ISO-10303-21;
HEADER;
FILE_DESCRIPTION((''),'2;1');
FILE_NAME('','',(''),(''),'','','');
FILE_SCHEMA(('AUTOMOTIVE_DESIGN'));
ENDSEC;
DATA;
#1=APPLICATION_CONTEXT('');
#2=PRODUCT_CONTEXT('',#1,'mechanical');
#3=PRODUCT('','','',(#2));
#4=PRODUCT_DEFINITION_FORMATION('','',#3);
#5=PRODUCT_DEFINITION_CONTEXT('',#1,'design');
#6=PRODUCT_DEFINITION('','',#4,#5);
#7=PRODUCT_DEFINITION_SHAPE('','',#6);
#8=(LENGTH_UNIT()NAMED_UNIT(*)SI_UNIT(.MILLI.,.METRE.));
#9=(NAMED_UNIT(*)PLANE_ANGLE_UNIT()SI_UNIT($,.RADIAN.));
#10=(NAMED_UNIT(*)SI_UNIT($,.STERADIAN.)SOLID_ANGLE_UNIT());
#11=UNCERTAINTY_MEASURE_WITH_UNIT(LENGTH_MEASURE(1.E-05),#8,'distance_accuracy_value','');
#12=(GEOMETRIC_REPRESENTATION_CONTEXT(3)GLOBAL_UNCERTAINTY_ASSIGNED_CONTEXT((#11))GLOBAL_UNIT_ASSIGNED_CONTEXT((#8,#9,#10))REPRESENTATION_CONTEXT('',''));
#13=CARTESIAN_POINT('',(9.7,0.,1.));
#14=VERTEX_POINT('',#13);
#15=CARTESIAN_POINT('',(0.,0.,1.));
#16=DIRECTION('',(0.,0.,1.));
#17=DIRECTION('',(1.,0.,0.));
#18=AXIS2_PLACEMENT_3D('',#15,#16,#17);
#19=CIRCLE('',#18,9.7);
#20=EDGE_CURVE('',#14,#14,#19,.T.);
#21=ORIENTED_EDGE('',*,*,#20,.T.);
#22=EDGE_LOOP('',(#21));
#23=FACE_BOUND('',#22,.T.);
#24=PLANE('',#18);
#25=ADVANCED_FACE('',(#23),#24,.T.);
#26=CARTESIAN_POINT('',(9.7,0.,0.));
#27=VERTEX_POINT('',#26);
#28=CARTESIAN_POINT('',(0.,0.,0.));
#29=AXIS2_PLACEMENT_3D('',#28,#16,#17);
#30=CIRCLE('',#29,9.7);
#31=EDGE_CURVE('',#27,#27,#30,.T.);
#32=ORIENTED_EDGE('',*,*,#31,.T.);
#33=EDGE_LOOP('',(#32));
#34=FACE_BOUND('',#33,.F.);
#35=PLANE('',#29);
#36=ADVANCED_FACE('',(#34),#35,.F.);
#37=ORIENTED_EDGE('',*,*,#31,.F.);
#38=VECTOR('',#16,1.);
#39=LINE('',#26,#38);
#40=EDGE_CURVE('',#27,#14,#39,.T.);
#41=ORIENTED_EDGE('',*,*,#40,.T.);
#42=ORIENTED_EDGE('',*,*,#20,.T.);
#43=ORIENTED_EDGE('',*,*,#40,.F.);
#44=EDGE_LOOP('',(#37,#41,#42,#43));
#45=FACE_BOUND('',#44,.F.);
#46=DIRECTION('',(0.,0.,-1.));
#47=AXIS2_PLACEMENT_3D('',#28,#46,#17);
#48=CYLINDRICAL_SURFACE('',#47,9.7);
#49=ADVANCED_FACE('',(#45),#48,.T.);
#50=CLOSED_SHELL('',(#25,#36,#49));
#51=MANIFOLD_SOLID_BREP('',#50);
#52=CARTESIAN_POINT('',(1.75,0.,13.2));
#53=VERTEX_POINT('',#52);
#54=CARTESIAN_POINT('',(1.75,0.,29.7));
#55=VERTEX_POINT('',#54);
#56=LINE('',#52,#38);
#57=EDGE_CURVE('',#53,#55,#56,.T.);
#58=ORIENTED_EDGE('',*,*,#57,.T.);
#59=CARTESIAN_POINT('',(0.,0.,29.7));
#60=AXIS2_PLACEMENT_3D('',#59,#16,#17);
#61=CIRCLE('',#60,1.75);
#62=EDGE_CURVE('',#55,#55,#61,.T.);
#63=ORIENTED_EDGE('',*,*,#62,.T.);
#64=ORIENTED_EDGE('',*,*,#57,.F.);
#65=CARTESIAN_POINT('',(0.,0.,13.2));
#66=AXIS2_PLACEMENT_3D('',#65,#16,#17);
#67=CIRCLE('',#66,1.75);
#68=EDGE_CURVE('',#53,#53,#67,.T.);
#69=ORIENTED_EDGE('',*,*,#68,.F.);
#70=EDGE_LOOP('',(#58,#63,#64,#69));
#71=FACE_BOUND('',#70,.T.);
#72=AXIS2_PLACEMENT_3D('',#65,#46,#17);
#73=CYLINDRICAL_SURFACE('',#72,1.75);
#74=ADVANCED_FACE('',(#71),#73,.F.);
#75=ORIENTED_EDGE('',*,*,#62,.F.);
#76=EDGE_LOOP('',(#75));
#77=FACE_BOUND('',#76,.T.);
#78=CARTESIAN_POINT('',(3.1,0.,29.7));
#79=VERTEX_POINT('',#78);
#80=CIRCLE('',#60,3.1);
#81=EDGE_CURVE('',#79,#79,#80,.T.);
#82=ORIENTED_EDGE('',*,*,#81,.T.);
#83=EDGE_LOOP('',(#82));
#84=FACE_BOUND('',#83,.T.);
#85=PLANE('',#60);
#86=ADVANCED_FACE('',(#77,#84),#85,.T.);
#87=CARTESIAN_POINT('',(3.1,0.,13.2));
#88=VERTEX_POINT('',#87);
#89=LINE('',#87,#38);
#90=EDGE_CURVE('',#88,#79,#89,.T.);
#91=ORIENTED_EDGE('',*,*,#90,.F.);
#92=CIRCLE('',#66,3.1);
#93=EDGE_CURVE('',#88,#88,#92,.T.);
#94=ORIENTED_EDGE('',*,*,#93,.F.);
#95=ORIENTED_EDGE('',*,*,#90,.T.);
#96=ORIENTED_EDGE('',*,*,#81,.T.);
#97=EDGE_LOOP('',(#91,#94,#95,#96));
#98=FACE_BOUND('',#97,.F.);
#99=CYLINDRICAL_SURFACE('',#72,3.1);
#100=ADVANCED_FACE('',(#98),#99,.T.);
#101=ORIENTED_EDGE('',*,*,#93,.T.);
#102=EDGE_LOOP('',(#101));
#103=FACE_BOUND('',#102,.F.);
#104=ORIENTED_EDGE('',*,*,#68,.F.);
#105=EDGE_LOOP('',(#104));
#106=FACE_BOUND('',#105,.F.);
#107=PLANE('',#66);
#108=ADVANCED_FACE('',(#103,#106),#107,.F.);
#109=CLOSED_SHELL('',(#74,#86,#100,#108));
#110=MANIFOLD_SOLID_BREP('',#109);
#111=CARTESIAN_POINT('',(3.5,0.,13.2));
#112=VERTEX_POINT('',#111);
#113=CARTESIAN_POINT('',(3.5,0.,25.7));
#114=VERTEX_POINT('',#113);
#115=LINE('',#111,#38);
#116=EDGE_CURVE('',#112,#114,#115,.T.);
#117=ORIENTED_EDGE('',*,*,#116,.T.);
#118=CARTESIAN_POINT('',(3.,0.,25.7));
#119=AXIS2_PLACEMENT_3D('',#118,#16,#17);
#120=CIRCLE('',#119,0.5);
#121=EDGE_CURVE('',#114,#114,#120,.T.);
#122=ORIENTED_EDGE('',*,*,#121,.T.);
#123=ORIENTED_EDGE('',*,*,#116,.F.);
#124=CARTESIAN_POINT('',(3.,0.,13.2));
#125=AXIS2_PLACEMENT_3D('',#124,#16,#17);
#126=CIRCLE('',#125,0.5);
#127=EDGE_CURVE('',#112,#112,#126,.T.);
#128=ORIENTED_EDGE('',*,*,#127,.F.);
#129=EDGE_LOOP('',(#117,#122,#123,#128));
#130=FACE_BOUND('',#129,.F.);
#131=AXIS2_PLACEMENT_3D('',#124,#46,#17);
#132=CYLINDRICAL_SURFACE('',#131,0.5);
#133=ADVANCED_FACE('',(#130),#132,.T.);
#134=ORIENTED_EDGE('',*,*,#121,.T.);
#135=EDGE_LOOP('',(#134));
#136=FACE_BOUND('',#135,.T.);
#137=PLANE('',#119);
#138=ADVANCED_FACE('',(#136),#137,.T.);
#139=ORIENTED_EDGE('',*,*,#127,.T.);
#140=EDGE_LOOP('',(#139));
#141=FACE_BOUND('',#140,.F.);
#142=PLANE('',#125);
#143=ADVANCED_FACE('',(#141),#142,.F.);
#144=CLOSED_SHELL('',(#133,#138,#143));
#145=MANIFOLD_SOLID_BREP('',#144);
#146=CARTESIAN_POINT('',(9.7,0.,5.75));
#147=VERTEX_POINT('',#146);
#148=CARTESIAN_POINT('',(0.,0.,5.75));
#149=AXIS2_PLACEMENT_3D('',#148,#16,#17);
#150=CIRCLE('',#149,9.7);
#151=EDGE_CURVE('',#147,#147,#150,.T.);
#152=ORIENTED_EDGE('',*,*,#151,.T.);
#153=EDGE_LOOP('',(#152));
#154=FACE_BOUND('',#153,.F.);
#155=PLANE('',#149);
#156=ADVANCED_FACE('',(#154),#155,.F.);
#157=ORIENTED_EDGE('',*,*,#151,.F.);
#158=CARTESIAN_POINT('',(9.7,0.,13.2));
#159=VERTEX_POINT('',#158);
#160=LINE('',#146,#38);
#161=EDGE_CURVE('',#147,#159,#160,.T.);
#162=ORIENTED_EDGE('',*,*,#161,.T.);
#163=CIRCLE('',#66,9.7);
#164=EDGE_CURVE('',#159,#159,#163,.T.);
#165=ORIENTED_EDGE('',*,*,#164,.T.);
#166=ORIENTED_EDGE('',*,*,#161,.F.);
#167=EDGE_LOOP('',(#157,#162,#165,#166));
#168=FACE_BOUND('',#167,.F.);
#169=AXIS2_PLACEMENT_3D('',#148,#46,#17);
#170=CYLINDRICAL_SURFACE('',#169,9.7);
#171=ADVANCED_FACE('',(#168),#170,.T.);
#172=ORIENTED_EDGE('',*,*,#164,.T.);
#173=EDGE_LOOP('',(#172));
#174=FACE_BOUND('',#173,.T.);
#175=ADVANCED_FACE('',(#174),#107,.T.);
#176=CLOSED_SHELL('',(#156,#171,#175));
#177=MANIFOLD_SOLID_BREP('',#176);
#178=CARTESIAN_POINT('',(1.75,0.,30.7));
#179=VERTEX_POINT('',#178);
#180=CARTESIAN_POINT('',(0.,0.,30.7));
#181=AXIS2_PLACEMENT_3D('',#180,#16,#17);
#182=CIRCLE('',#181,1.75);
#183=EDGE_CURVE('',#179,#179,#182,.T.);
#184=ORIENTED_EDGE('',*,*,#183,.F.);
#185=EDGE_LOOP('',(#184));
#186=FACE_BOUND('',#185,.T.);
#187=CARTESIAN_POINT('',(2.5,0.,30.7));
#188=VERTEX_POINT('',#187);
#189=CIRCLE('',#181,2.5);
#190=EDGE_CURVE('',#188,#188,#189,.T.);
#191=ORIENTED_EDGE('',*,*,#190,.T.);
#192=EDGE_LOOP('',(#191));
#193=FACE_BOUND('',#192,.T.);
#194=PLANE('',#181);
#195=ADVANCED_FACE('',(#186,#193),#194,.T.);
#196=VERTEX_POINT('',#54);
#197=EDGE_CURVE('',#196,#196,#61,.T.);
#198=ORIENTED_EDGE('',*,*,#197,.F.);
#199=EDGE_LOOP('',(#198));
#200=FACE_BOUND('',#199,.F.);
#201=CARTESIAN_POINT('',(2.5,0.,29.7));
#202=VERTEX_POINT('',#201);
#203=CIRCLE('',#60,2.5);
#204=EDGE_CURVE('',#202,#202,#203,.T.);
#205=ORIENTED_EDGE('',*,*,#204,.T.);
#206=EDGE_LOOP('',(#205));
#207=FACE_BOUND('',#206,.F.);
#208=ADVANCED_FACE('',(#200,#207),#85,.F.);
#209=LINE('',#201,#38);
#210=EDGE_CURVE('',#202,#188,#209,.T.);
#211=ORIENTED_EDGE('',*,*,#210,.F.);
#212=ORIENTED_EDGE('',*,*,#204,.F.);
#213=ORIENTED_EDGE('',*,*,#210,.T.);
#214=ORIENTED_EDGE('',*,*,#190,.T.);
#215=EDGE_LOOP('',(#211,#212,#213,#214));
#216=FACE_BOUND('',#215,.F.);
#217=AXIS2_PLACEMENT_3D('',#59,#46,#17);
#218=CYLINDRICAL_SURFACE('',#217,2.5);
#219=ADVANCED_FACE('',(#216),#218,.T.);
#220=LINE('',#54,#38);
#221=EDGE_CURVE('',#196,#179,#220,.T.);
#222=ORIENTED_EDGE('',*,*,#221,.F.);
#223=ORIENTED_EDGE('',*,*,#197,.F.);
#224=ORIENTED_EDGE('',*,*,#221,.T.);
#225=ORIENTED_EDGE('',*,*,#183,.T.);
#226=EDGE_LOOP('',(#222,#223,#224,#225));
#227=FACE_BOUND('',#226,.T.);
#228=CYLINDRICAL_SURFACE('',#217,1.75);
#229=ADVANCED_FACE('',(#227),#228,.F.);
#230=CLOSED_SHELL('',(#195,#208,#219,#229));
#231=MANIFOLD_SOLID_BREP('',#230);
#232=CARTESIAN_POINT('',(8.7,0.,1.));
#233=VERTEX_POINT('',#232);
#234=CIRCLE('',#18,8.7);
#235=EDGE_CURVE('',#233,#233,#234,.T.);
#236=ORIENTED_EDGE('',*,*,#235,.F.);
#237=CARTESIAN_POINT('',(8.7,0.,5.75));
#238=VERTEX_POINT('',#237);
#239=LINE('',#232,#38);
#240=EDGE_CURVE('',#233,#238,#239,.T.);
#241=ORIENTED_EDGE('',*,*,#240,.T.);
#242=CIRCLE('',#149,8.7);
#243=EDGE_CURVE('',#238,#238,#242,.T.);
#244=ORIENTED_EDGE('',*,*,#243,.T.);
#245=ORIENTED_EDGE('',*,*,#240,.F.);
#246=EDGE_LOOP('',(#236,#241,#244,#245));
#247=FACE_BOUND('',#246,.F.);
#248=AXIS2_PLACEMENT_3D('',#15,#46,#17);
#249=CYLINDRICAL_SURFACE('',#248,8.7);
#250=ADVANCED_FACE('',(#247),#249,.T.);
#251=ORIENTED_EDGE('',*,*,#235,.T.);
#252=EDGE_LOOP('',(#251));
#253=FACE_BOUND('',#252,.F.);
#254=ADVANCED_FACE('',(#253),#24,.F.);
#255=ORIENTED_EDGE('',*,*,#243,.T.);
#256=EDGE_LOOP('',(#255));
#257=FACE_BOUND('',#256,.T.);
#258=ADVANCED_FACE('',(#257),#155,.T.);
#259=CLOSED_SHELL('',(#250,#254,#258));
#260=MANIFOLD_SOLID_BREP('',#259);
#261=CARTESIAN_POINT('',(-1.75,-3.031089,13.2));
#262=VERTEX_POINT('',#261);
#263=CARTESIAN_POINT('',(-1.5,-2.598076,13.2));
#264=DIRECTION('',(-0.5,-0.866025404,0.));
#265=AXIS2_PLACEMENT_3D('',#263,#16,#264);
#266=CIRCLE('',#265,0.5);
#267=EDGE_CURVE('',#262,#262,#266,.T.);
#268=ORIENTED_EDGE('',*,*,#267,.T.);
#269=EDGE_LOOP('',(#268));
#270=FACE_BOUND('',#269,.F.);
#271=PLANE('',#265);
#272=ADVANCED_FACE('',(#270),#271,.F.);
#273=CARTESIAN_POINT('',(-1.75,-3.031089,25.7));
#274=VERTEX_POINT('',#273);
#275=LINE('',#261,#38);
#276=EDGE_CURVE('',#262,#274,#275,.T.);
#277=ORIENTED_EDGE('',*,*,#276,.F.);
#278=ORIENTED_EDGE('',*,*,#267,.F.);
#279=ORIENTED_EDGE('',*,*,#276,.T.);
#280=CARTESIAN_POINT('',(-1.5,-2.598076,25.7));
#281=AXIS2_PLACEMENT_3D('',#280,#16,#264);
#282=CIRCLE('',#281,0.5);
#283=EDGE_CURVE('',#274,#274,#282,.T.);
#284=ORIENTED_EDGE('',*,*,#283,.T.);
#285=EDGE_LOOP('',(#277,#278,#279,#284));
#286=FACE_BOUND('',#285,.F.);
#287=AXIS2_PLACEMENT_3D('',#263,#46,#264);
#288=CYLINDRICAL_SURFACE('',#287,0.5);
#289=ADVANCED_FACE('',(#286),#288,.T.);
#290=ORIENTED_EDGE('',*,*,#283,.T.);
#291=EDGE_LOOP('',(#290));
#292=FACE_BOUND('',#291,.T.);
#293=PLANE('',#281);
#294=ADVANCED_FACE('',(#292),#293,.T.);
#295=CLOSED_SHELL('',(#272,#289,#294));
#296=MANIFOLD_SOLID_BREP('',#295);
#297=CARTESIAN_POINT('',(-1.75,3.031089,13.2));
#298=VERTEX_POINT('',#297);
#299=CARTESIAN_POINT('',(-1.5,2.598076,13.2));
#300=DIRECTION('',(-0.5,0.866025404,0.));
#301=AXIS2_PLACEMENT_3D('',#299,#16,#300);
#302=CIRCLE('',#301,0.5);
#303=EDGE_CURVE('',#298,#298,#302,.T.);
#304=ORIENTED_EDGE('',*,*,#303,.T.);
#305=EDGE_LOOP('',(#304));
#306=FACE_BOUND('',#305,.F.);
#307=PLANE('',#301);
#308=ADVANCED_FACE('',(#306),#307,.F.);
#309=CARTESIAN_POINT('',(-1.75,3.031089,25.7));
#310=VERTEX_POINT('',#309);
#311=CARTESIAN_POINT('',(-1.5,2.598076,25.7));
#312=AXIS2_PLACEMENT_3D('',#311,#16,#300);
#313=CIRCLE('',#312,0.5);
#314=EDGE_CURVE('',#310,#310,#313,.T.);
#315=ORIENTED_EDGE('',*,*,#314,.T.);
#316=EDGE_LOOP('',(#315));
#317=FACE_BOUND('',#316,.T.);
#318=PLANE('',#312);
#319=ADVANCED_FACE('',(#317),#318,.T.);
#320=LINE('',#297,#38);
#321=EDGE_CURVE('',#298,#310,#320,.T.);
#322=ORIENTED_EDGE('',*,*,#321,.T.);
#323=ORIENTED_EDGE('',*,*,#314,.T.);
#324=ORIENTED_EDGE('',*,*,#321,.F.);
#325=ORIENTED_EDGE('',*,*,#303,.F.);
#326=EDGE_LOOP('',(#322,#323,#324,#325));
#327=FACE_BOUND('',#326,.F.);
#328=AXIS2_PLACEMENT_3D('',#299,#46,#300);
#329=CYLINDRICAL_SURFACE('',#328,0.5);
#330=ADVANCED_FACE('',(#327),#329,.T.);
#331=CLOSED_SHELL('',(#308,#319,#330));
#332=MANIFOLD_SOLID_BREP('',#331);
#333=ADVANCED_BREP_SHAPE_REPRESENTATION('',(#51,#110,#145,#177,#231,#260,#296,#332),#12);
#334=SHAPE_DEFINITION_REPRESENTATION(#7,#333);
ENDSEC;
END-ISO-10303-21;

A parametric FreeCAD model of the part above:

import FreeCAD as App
import Part
import Sketcher

doc = App.newDocument("Part")
params = doc.addObject("Spreadsheet::Sheet", "Params")
for row, (alias, value) in enumerate([
    ("sketch1_diameter", "19.4 mm"),
    ("pad1_length", "7.45 mm"),
    ("sketch2_diameter", "17.4 mm"),
    ("pad2_length", "4.75 mm"),
    ("sketch3_diameter", "19.4 mm"),
    ("pad3_length", "1 mm"),
    ("sketch4_diameter", "1 mm"),
    ("pad4_length", "12.5 mm"),
    ("sketch5_diameter", "3.5 mm"),
    ("pad5_length", "16.5 mm"),
    ("sketch6_diameter", "6.2 mm"),
    ("pad6_length", "16.5 mm"),
    ("sketch7_diameter", "3.5 mm"),
    ("pad7_length", "1 mm"),
    ("sketch8_diameter", "5 mm"),
    ("pad8_length", "1 mm"),
    ("sketch9_diameter", "1 mm"),
    ("pad9_length", "12.5 mm"),
    ("sketch10_diameter", "1 mm"),
    ("pad10_length", "12.5 mm"),
], start=1):
    params.set(f"A{row}", alias)
    params.set(f"B{row}", "=" + value)
    params.setAlias(f"B{row}", alias)

body = doc.addObject("PartDesign::Body", "Body")

# Sketch on XY plane
sketch1 = body.newObject("Sketcher::SketchObject", "Sketch")
sketch1.AttachmentSupport = (doc.getObject("XY_Plane"), [""])
sketch1.MapMode = "FlatFace"
sketch1.AttachmentOffset = App.Placement(App.Vector(0, 0, 5.75), App.Rotation())
sketch1.addGeometry(Part.Circle(App.Vector(0, 0, 0), App.Vector(0, 0, 1), 10), False)
sketch1.addConstraint([
    Sketcher.Constraint("Coincident", 0, 3, -1, 1),
    Sketcher.Constraint("Diameter", 0, 19.4),
])
sketch1.setExpression("Constraints[1]", "Params.sketch1_diameter")
pad1 = body.newObject("PartDesign::Pad", "Pad")
pad1.Profile = sketch1
pad1.setExpression("Length", "Params.pad1_length")
body2 = doc.addObject("PartDesign::Body", "Body001")

# Sketch on XY plane
sketch2 = body2.newObject("Sketcher::SketchObject", "Sketch001")
sketch2.AttachmentSupport = (doc.getObject("XY_Plane001"), [""])
sketch2.MapMode = "FlatFace"
sketch2.AttachmentOffset = App.Placement(App.Vector(0, 0, 1), App.Rotation())
sketch2.addGeometry(Part.Circle(App.Vector(0, 0, 0), App.Vector(0, 0, 1), 9), False)
sketch2.addConstraint([
    Sketcher.Constraint("Coincident", 0, 3, -1, 1),
    Sketcher.Constraint("Diameter", 0, 17.4),
])
sketch2.setExpression("Constraints[1]", "Params.sketch2_diameter")
pad2 = body2.newObject("PartDesign::Pad", "Pad001")
pad2.Profile = sketch2
pad2.setExpression("Length", "Params.pad2_length")
body3 = doc.addObject("PartDesign::Body", "Body002")

# Sketch on XY plane
sketch3 = body3.newObject("Sketcher::SketchObject", "Sketch002")
sketch3.AttachmentSupport = (doc.getObject("XY_Plane002"), [""])
sketch3.MapMode = "FlatFace"
sketch3.addGeometry(Part.Circle(App.Vector(0, 0, 0), App.Vector(0, 0, 1), 10), False)
sketch3.addConstraint([
    Sketcher.Constraint("Coincident", 0, 3, -1, 1),
    Sketcher.Constraint("Diameter", 0, 19.4),
])
sketch3.setExpression("Constraints[1]", "Params.sketch3_diameter")
pad3 = body3.newObject("PartDesign::Pad", "Pad002")
pad3.Profile = sketch3
pad3.setExpression("Length", "Params.pad3_length")
body4 = doc.addObject("PartDesign::Body", "Body003")

# Sketch on XY plane
sketch4 = body4.newObject("Sketcher::SketchObject", "Sketch003")
sketch4.AttachmentSupport = (doc.getObject("XY_Plane003"), [""])
sketch4.MapMode = "FlatFace"
sketch4.AttachmentOffset = App.Placement(App.Vector(0, 0, 13.2), App.Rotation())
sketch4.addGeometry(Part.Circle(App.Vector(3, 0, 0), App.Vector(0, 0, 1), 0.5), False)
sketch4.addConstraint([
    Sketcher.Constraint("PointOnObject", 0, 3, -1),
    Sketcher.Constraint("Diameter", 0, 1.0),
    Sketcher.Constraint("DistanceX", -1, 1, 0, 3, 3.0),
])
sketch4.setExpression("Constraints[1]", "Params.sketch4_diameter")
pad4 = body4.newObject("PartDesign::Pad", "Pad003")
pad4.Profile = sketch4
pad4.setExpression("Length", "Params.pad4_length")
body5 = doc.addObject("PartDesign::Body", "Body004")

# Sketch on XY plane
sketch5 = body5.newObject("Sketcher::SketchObject", "Sketch004")
sketch5.AttachmentSupport = (doc.getObject("XY_Plane004"), [""])
sketch5.MapMode = "FlatFace"
sketch5.AttachmentOffset = App.Placement(App.Vector(0, 0, 13.2), App.Rotation())
sketch5.addGeometry(Part.Circle(App.Vector(0, 0, 0), App.Vector(0, 0, 1), 1.8), False)
sketch5.addConstraint([
    Sketcher.Constraint("Coincident", 0, 3, -1, 1),
    Sketcher.Constraint("Diameter", 0, 3.5),
])
sketch5.setExpression("Constraints[1]", "Params.sketch5_diameter")
pad5 = body5.newObject("PartDesign::Pad", "Pad004")
pad5.Profile = sketch5
pad5.setExpression("Length", "Params.pad5_length")
body6 = doc.addObject("PartDesign::Body", "Body005")

# Sketch on XY plane
sketch6 = body6.newObject("Sketcher::SketchObject", "Sketch005")
sketch6.AttachmentSupport = (doc.getObject("XY_Plane005"), [""])
sketch6.MapMode = "FlatFace"
sketch6.AttachmentOffset = App.Placement(App.Vector(0, 0, 13.2), App.Rotation())
sketch6.addGeometry(Part.Circle(App.Vector(0, 0, 0), App.Vector(0, 0, 1), 3.1), False)
sketch6.addConstraint([
    Sketcher.Constraint("Coincident", 0, 3, -1, 1),
    Sketcher.Constraint("Diameter", 0, 6.2),
])
sketch6.setExpression("Constraints[1]", "Params.sketch6_diameter")
pad6 = body6.newObject("PartDesign::Pad", "Pad005")
pad6.Profile = sketch6
pad6.setExpression("Length", "Params.pad6_length")
doc.recompute()

boolean = body6.newObject("PartDesign::Boolean", "Boolean")
boolean.Type = "Cut"
boolean.addObjects([body5])
body7 = doc.addObject("PartDesign::Body", "Body006")

# Sketch on XY plane
sketch7 = body7.newObject("Sketcher::SketchObject", "Sketch006")
sketch7.AttachmentSupport = (doc.getObject("XY_Plane006"), [""])
sketch7.MapMode = "FlatFace"
sketch7.AttachmentOffset = App.Placement(App.Vector(0, 0, 29.7), App.Rotation())
sketch7.addGeometry(Part.Circle(App.Vector(0, 0, 0), App.Vector(0, 0, 1), 1.8), False)
sketch7.addConstraint([
    Sketcher.Constraint("Coincident", 0, 3, -1, 1),
    Sketcher.Constraint("Diameter", 0, 3.5),
])
sketch7.setExpression("Constraints[1]", "Params.sketch7_diameter")
pad7 = body7.newObject("PartDesign::Pad", "Pad006")
pad7.Profile = sketch7
pad7.setExpression("Length", "Params.pad7_length")
body8 = doc.addObject("PartDesign::Body", "Body007")

# Sketch on XY plane
sketch8 = body8.newObject("Sketcher::SketchObject", "Sketch007")
sketch8.AttachmentSupport = (doc.getObject("XY_Plane007"), [""])
sketch8.MapMode = "FlatFace"
sketch8.AttachmentOffset = App.Placement(App.Vector(0, 0, 29.7), App.Rotation())
sketch8.addGeometry(Part.Circle(App.Vector(0, 0, 0), App.Vector(0, 0, 1), 2.5), False)
sketch8.addConstraint([
    Sketcher.Constraint("Coincident", 0, 3, -1, 1),
    Sketcher.Constraint("Diameter", 0, 5.0),
])
sketch8.setExpression("Constraints[1]", "Params.sketch8_diameter")
pad8 = body8.newObject("PartDesign::Pad", "Pad007")
pad8.Profile = sketch8
pad8.setExpression("Length", "Params.pad8_length")
doc.recompute()

boolean2 = body8.newObject("PartDesign::Boolean", "Boolean001")
boolean2.Type = "Cut"
boolean2.addObjects([body7])
body9 = doc.addObject("PartDesign::Body", "Body008")

# Sketch on XY plane
sketch9 = body9.newObject("Sketcher::SketchObject", "Sketch008")
sketch9.AttachmentSupport = (doc.getObject("XY_Plane008"), [""])
sketch9.MapMode = "FlatFace"
sketch9.addGeometry(Part.Circle(App.Vector(0, 0, 0), App.Vector(0, 0, 1), 0.5), False)
sketch9.addConstraint([
    Sketcher.Constraint("Coincident", 0, 3, -1, 1),
    Sketcher.Constraint("Diameter", 0, 1.0),
])
sketch9.setExpression("Constraints[1]", "Params.sketch9_diameter")
pad9 = body9.newObject("PartDesign::Pad", "Pad008")
pad9.Profile = sketch9
pad9.setExpression("Length", "Params.pad9_length")
body10 = doc.addObject("PartDesign::Body", "Body009")
doc.recompute()

body9.Placement = App.Placement(App.Vector(-1.5, 2.598076, 13.2), App.Rotation(App.Vector(0, 0, 1), 120))
boolean3 = body10.newObject("PartDesign::Boolean", "Boolean002")
boolean3.Type = "Fuse"
boolean3.addObjects([body9])
body11 = doc.addObject("PartDesign::Body", "Body010")

# Sketch on XY plane
sketch10 = body11.newObject("Sketcher::SketchObject", "Sketch009")
sketch10.AttachmentSupport = (doc.getObject("XY_Plane010"), [""])
sketch10.MapMode = "FlatFace"
sketch10.addGeometry(Part.Circle(App.Vector(0, 0, 0), App.Vector(0, 0, 1), 0.5), False)
sketch10.addConstraint([
    Sketcher.Constraint("Coincident", 0, 3, -1, 1),
    Sketcher.Constraint("Diameter", 0, 1.0),
])
sketch10.setExpression("Constraints[1]", "Params.sketch10_diameter")
pad10 = body11.newObject("PartDesign::Pad", "Pad009")
pad10.Profile = sketch10
pad10.setExpression("Length", "Params.pad10_length")
body12 = doc.addObject("PartDesign::Body", "Body011")
doc.recompute()

body11.Placement = App.Placement(App.Vector(-1.5, -2.598076, 13.2), App.Rotation(App.Vector(0, 0, 1), 240))
boolean4 = body12.newObject("PartDesign::Boolean", "Boolean003")
boolean4.Type = "Fuse"
boolean4.addObjects([body11])

doc.recompute()
